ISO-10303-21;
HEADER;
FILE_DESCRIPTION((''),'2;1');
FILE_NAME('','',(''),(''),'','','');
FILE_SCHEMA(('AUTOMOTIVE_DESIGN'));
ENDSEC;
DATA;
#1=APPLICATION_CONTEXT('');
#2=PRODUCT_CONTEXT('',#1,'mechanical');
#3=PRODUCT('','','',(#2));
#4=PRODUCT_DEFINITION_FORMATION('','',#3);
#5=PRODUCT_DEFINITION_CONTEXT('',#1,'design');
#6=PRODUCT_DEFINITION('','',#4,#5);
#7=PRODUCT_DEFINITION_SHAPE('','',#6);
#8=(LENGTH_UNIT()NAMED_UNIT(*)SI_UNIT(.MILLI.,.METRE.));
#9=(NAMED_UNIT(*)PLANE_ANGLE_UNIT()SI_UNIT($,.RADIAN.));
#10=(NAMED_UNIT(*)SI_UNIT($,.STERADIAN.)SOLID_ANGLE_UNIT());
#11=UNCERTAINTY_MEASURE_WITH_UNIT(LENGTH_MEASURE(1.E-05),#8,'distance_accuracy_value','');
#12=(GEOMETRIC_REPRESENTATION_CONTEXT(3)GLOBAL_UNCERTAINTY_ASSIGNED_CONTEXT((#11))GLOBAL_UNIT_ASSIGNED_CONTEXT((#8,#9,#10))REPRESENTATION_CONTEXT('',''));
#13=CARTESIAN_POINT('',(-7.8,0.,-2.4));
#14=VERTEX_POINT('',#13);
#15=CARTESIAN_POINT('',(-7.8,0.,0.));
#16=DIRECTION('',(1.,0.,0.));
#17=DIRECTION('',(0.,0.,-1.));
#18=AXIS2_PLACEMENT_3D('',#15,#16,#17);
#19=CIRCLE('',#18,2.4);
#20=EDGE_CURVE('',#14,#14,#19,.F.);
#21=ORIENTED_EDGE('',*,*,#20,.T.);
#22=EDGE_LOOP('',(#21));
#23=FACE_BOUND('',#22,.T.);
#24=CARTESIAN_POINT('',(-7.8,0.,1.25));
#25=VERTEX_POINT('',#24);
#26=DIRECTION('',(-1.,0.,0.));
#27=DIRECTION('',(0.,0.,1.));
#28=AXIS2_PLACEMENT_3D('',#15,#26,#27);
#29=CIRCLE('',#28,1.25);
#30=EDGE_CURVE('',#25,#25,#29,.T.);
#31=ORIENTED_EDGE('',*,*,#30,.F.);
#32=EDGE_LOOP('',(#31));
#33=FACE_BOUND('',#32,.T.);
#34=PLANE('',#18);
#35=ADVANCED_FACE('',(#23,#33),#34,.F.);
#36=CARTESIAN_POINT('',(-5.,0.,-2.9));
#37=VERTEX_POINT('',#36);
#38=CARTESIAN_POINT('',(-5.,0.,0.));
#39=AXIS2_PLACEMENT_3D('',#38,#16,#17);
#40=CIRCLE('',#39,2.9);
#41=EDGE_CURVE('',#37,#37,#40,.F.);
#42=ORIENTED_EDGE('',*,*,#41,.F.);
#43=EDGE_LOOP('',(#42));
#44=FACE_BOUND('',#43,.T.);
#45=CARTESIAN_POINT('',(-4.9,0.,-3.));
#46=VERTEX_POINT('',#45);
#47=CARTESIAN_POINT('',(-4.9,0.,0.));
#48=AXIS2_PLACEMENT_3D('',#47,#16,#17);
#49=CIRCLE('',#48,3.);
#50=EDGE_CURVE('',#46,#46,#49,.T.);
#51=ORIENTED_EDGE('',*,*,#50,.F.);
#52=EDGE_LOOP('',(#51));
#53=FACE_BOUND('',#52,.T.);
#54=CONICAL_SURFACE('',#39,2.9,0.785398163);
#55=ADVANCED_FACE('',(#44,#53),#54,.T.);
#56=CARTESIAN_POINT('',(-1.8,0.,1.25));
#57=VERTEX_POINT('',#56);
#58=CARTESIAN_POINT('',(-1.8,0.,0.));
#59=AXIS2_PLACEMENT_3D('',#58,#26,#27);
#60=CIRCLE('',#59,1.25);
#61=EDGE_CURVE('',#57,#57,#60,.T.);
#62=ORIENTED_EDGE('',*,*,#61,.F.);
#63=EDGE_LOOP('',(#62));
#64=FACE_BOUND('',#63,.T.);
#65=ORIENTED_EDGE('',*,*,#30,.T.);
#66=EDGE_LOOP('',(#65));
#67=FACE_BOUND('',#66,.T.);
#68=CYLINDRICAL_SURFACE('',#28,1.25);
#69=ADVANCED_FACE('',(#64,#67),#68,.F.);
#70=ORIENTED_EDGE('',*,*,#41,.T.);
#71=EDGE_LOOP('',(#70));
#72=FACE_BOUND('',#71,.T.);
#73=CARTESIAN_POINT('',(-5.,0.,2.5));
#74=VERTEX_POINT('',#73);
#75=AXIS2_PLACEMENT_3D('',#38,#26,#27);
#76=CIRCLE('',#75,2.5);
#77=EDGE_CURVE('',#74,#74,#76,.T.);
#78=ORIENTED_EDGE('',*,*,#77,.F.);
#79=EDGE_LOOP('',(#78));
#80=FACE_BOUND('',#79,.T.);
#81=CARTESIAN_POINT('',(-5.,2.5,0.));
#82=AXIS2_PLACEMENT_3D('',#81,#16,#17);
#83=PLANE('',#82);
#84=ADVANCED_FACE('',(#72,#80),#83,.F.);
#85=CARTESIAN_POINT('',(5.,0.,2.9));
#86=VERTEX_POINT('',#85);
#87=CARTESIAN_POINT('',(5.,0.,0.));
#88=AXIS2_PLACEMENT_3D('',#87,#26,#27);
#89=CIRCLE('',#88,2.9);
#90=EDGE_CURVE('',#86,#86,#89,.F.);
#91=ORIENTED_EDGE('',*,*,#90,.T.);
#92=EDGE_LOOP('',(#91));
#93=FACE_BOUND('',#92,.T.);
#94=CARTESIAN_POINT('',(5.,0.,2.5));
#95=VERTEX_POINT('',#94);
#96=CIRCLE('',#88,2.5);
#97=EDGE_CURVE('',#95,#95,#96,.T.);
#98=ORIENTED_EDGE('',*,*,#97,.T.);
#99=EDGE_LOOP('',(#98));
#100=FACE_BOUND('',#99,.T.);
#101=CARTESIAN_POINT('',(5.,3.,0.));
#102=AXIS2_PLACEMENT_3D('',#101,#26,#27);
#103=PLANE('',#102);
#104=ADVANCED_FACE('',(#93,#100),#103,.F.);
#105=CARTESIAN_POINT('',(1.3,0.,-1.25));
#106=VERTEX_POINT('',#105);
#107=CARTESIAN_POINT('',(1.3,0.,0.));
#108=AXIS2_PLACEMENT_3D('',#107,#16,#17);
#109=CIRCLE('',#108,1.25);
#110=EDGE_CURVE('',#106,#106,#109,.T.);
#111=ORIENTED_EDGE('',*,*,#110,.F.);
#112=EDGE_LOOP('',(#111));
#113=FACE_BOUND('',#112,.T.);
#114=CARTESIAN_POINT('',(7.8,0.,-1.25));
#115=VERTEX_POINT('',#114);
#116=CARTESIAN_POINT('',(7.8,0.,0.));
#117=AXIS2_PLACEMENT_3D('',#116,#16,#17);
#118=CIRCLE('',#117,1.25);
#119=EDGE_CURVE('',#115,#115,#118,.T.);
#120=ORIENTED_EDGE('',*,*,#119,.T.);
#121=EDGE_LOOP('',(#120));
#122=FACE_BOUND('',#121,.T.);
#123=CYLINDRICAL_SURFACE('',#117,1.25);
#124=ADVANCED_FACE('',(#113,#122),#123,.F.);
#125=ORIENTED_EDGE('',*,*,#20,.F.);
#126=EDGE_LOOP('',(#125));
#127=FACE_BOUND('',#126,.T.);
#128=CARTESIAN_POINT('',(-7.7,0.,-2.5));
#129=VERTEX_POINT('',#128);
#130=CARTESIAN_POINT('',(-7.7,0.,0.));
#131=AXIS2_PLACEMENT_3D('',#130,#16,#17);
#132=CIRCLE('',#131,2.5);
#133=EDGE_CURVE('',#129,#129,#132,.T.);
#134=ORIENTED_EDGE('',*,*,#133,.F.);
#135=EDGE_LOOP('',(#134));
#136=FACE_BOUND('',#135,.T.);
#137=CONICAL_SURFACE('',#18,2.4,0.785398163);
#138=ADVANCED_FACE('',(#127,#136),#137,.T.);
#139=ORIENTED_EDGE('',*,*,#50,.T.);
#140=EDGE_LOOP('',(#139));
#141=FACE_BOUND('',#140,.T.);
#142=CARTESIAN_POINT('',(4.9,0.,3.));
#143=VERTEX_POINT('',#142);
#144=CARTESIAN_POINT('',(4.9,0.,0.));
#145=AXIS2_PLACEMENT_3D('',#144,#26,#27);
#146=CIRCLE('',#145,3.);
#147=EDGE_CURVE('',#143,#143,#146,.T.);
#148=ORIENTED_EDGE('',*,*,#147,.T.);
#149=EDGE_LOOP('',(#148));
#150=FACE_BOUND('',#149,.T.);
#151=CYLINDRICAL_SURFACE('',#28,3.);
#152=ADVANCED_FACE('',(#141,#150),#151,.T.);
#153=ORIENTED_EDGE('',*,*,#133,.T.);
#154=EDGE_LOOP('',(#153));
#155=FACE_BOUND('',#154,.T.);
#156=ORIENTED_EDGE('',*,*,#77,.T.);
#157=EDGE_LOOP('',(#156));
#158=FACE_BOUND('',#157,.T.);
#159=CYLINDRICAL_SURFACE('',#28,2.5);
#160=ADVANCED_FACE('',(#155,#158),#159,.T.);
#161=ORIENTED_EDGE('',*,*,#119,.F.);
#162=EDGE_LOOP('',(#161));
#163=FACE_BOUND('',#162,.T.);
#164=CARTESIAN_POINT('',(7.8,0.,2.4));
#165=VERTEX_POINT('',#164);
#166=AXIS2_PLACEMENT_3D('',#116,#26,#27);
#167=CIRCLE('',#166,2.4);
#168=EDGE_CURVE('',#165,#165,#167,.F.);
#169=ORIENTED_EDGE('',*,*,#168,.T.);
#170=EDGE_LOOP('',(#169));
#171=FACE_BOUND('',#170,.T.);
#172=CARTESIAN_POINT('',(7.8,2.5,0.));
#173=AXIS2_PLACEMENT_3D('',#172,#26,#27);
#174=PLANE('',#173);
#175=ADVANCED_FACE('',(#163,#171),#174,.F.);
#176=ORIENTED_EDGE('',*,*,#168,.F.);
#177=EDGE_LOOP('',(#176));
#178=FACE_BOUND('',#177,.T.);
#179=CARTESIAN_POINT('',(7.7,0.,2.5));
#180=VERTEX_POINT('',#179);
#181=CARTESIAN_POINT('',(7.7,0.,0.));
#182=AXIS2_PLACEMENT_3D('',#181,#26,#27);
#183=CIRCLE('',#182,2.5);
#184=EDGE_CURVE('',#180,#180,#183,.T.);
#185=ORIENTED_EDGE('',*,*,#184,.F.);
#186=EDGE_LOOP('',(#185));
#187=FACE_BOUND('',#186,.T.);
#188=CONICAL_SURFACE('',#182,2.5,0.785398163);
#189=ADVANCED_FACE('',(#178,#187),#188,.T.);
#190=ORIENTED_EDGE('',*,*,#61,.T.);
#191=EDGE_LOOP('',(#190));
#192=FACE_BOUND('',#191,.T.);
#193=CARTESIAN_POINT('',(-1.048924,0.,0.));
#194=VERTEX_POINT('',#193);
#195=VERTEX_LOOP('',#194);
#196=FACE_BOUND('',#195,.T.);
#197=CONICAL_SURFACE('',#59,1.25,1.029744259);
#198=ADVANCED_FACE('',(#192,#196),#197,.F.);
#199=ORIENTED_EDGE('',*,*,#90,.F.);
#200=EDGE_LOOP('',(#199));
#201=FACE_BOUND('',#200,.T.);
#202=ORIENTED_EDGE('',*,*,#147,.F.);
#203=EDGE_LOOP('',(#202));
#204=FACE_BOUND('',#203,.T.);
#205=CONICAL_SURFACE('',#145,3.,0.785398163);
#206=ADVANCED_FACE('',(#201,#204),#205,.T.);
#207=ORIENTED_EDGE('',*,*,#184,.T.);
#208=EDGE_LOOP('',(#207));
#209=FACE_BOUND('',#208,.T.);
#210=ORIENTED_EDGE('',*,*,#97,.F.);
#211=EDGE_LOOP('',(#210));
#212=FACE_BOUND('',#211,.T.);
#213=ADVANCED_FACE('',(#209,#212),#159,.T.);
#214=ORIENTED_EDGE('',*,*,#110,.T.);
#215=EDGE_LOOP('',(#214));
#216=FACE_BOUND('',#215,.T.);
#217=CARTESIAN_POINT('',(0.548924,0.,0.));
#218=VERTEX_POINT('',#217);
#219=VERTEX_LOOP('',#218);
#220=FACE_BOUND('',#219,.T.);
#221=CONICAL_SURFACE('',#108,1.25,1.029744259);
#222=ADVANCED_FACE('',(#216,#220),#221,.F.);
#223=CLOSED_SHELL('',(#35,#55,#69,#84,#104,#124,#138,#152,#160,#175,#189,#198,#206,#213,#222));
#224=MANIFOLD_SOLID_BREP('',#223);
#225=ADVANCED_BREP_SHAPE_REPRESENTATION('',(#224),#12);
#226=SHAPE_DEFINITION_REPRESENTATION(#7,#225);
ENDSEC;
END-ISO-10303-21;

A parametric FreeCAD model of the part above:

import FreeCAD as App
import Part
import Sketcher
Q = App.Units.Quantity


def edges_at(feature, points):
    """Names of the edges that pass closest to the given points."""
    edges = feature.Shape.Edges
    near = lambda p: min(range(len(edges)), key=lambda i: edges[i].distToShape(Part.Vertex(*p))[0])
    return sorted({f"Edge{near(p) + 1}" for p in points})


def add_polygon(sketch, points):
    """Adds a closed chain of lines whose ends are joined by coincident constraints."""
    first, n = sketch.GeometryCount, len(points)
    for a, b in zip(points, points[1:] + points[:1]):
        sketch.addGeometry(Part.LineSegment(App.Vector(*a, 0), App.Vector(*b, 0)), False)
    for i in range(n):
        sketch.addConstraint(Sketcher.Constraint("Coincident", first + i, 2, first + (i + 1) % n, 1))

doc = App.newDocument("Part")
body = doc.addObject("PartDesign::Body", "Body")

# Sketch on XY plane
sketch1 = body.newObject("Sketcher::SketchObject", "Sketch")
sketch1.AttachmentSupport = (doc.getObject("XY_Plane"), [""])
sketch1.MapMode = "FlatFace"
add_polygon(sketch1, [(-7.8, 2.5), (-7.8, 0), (7.8, 0), (7.8, 2.5), (5, 2.5), (5, 3), (-5, 3), (-5, 2.5)])  # lines 0-7
sketch1.addConstraint([
    Sketcher.Constraint("Vertical", 0),
    Sketcher.Constraint("Horizontal", 1),
    Sketcher.Constraint("Vertical", 2),
    Sketcher.Constraint("Horizontal", 3),
    Sketcher.Constraint("Vertical", 4),
    Sketcher.Constraint("Horizontal", 5),
    Sketcher.Constraint("Vertical", 6),
    Sketcher.Constraint("Horizontal", 7),
    Sketcher.Constraint("Symmetric", 0, 2, 1, 2, -1, 1),
    Sketcher.Constraint("Symmetric", 3, 2, 6, 2, -2),
    Sketcher.Constraint("DistanceX", 5, 2, 5, 1, Q("10 mm")),
    Sketcher.Constraint("DistanceX", 1, 1, 1, 2, Q("15.6 mm")),
    Sketcher.Constraint("DistanceY", 0, 2, 0, 1, Q("2.5 mm")),
    Sketcher.Constraint("DistanceY", 4, 1, 4, 2, Q("0.5 mm")),
])
revolution = body.newObject("PartDesign::Revolution", "Revolution")
revolution.Profile = sketch1
revolution.ReferenceAxis = (sketch1, ["H_Axis"])
revolution.Angle = 360

# Sketch on YZ plane
sketch2 = body.newObject("Sketcher::SketchObject", "Sketch001")
sketch2.AttachmentSupport = (doc.getObject("YZ_Plane"), [""])
sketch2.MapMode = "FlatFace"
sketch2.AttachmentOffset = App.Placement(App.Vector(0, 0, -7.8), App.Rotation())
sketch2.addGeometry(Part.Circle(App.Vector(0, 0, 0), App.Vector(0, 0, 1), 1.2), False)
sketch2.addConstraint([
    Sketcher.Constraint("Coincident", 0, 3, -1, 1),
    Sketcher.Constraint("Diameter", 0, Q("2.5 mm")),
])
doc.recompute()
hole = body.newObject("PartDesign::Hole", "Hole")
hole.Profile = sketch2
hole.ThreadType = "None"
hole.Diameter = 2.5
hole.DepthType = "Dimension"
hole.Depth = 6
hole.DrillPoint = "Angled"
hole.DrillPointAngle = 118
hole.Reversed = True

# Sketch on YZ plane
sketch3 = body.newObject("Sketcher::SketchObject", "Sketch002")
sketch3.AttachmentSupport = (doc.getObject("YZ_Plane"), [""])
sketch3.MapMode = "FlatFace"
sketch3.AttachmentOffset = App.Placement(App.Vector(0, 0, 7.8), App.Rotation())
sketch3.addGeometry(Part.Circle(App.Vector(0, 0, 0), App.Vector(0, 0, 1), 1.2), False)
sketch3.addConstraint([
    Sketcher.Constraint("Coincident", 0, 3, -1, 1),
    Sketcher.Constraint("Diameter", 0, Q("2.5 mm")),
])
doc.recompute()
hole2 = body.newObject("PartDesign::Hole", "Hole001")
hole2.Profile = sketch3
hole2.ThreadType = "None"
hole2.Diameter = 2.5
hole2.DepthType = "Dimension"
hole2.Depth = 6.5
hole2.DrillPoint = "Angled"
hole2.DrillPointAngle = 118
doc.recompute()

chamfer = body.newObject("PartDesign::Chamfer", "Chamfer")
chamfer.Base = (hole2, edges_at(hole2, [
    (7.8, 0, -2.5),
    (5, 0, -3),
    (-5, 0, -3),
    (-7.8, 0, -2.5),
]))
chamfer.Size = 0.1

doc.recompute()
